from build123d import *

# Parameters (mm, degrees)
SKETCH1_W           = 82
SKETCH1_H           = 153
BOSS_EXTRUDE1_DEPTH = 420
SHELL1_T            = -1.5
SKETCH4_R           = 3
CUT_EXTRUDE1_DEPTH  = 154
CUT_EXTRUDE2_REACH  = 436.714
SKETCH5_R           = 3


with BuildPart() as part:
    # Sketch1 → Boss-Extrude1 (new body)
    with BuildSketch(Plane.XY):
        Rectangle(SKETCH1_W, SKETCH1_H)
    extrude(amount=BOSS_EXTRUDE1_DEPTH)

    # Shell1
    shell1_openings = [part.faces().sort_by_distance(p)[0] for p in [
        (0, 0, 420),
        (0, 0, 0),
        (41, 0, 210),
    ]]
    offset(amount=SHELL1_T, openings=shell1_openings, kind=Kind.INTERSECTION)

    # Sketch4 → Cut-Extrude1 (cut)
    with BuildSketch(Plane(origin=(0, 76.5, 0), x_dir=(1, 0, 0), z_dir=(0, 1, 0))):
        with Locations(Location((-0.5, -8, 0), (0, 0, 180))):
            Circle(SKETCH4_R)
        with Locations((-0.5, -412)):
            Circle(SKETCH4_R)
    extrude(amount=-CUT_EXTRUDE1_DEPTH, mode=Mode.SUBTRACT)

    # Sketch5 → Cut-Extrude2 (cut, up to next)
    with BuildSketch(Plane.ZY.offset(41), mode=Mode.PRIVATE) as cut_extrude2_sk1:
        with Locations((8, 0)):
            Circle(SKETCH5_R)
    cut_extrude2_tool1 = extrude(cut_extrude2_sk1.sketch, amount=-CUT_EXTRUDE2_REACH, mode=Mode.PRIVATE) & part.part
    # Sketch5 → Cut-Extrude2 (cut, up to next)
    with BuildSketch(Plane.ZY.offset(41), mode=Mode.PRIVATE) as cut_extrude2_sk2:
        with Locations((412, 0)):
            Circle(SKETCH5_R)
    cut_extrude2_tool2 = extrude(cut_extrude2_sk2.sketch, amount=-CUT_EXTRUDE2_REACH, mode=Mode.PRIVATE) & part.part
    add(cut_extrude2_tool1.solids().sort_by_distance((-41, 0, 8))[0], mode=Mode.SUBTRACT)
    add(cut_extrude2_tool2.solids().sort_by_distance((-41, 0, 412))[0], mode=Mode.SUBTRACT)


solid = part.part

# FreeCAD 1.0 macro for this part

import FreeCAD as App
import Part
import Sketcher
from FreeCAD import Vector


def faces_at(feature, points):
    """Names of the faces that lie closest to the given points."""
    faces = feature.Shape.Faces
    near = lambda p: min(range(len(faces)), key=lambda i: faces[i].distToShape(Part.Vertex(*p))[0])
    return sorted({f"Face{near(p) + 1}" for p in points})

doc = App.newDocument("Part")
body = doc.addObject("PartDesign::Body", "Body")

# Sketch on XY plane
sketch1 = body.newObject("Sketcher::SketchObject", "Sketch")
sketch1.AttachmentSupport = (doc.getObject("XY_Plane"), [""])
sketch1.MapMode = "FlatFace"
sketch1.addGeometry(Part.LineSegment(Vector(-41, 76.5, 0), Vector(-41, -76.5, 0)), False)
sketch1.addGeometry(Part.LineSegment(Vector(-41, -76.5, 0), Vector(41, -76.5, 0)), False)
sketch1.addGeometry(Part.LineSegment(Vector(41, -76.5, 0), Vector(41, 76.5, 0)), False)
sketch1.addGeometry(Part.LineSegment(Vector(41, 76.5, 0), Vector(-41, 76.5, 0)), False)
sketch1.addConstraint(Sketcher.Constraint("Coincident", 0, 2, 1, 1))
sketch1.addConstraint(Sketcher.Constraint("Coincident", 1, 2, 2, 1))
sketch1.addConstraint(Sketcher.Constraint("Coincident", 2, 2, 3, 1))
sketch1.addConstraint(Sketcher.Constraint("Coincident", 3, 2, 0, 1))
sketch1.addConstraint(Sketcher.Constraint("Vertical", 0))
sketch1.addConstraint(Sketcher.Constraint("Horizontal", 1))
sketch1.addConstraint(Sketcher.Constraint("Vertical", 2))
sketch1.addConstraint(Sketcher.Constraint("Horizontal", 3))
sketch1.addConstraint(Sketcher.Constraint("Symmetric", 0, 2, 2, 2, -1, 1))
sketch1.addConstraint(Sketcher.Constraint("DistanceX", 1, 1, 1, 2, 82.0))
sketch1.addConstraint(Sketcher.Constraint("DistanceY", 0, 2, 0, 1, 153.0))
pad1 = body.newObject("PartDesign::Pad", "Pad")
pad1.Profile = sketch1
pad1.Length = 420
doc.recompute()

thickness = body.newObject("PartDesign::Thickness", "Thickness")
thickness.Base = (pad1, faces_at(pad1, [(0, 0, 420), (0, 0, 0), (41, 0, 210)]))
thickness.Value = 1.5
thickness.Reversed = True
thickness.Join = "Intersection"

# Sketch on XZ plane
sketch2 = body.newObject("Sketcher::SketchObject", "Sketch001")
sketch2.AttachmentSupport = (doc.getObject("XZ_Plane"), [""])
sketch2.MapMode = "FlatFace"
sketch2.AttachmentOffset = App.Placement(Vector(0, 0, -76.5), App.Rotation())
sketch2.addGeometry(Part.Circle(Vector(-0.5, 8, 0), Vector(0, 0, 1), 3), False)
sketch2.addGeometry(Part.Circle(Vector(-0.5, 412, 0), Vector(0, 0, 1), 3), False)
sketch2.addConstraint(Sketcher.Constraint("Equal", 0, 1))
sketch2.addConstraint(Sketcher.Constraint("Vertical", 0, 3, 1, 3))
sketch2.addConstraint(Sketcher.Constraint("Diameter", 0, 6.0))
sketch2.addConstraint(Sketcher.Constraint("DistanceY", -1, 1, 0, 3, 8.0))
sketch2.addConstraint(Sketcher.Constraint("DistanceY", -1, 1, 1, 3, 412.0))
sketch2.addConstraint(Sketcher.Constraint("DistanceX", 0, 3, -1, 1, 0.5))
pocket1 = body.newObject("PartDesign::Pocket", "Pocket")
pocket1.Profile = sketch2
pocket1.Length = 154
pocket1.Reversed = True

# Sketch on YZ plane
sketch3 = body.newObject("Sketcher::SketchObject", "Sketch002")
sketch3.AttachmentSupport = (doc.getObject("YZ_Plane"), [""])
sketch3.MapMode = "FlatFace"
sketch3.AttachmentOffset = App.Placement(Vector(0, 0, -41), App.Rotation())
sketch3.addGeometry(Part.Circle(Vector(0, 8, 0), Vector(0, 0, 1), 3), False)
sketch3.addConstraint(Sketcher.Constraint("PointOnObject", 0, 3, -2))
sketch3.addConstraint(Sketcher.Constraint("Diameter", 0, 6.0))
sketch3.addConstraint(Sketcher.Constraint("DistanceY", -1, 1, 0, 3, 8.0))
pocket2 = body.newObject("PartDesign::Pocket", "Pocket001")
pocket2.Profile = sketch3
pocket2.Type = "UpToFirst"
pocket2.Reversed = True

# Sketch on YZ plane
sketch4 = body.newObject("Sketcher::SketchObject", "Sketch003")
sketch4.AttachmentSupport = (doc.getObject("YZ_Plane"), [""])
sketch4.MapMode = "FlatFace"
sketch4.AttachmentOffset = App.Placement(Vector(0, 0, -41), App.Rotation())
sketch4.addGeometry(Part.Circle(Vector(0, 412, 0), Vector(0, 0, 1), 3), False)
sketch4.addConstraint(Sketcher.Constraint("PointOnObject", 0, 3, -2))
sketch4.addConstraint(Sketcher.Constraint("Diameter", 0, 6.0))
sketch4.addConstraint(Sketcher.Constraint("DistanceY", -1, 1, 0, 3, 412.0))
pocket3 = body.newObject("PartDesign::Pocket", "Pocket002")
pocket3.Profile = sketch4
pocket3.Type = "UpToFirst"
pocket3.Reversed = True

doc.recompute()
